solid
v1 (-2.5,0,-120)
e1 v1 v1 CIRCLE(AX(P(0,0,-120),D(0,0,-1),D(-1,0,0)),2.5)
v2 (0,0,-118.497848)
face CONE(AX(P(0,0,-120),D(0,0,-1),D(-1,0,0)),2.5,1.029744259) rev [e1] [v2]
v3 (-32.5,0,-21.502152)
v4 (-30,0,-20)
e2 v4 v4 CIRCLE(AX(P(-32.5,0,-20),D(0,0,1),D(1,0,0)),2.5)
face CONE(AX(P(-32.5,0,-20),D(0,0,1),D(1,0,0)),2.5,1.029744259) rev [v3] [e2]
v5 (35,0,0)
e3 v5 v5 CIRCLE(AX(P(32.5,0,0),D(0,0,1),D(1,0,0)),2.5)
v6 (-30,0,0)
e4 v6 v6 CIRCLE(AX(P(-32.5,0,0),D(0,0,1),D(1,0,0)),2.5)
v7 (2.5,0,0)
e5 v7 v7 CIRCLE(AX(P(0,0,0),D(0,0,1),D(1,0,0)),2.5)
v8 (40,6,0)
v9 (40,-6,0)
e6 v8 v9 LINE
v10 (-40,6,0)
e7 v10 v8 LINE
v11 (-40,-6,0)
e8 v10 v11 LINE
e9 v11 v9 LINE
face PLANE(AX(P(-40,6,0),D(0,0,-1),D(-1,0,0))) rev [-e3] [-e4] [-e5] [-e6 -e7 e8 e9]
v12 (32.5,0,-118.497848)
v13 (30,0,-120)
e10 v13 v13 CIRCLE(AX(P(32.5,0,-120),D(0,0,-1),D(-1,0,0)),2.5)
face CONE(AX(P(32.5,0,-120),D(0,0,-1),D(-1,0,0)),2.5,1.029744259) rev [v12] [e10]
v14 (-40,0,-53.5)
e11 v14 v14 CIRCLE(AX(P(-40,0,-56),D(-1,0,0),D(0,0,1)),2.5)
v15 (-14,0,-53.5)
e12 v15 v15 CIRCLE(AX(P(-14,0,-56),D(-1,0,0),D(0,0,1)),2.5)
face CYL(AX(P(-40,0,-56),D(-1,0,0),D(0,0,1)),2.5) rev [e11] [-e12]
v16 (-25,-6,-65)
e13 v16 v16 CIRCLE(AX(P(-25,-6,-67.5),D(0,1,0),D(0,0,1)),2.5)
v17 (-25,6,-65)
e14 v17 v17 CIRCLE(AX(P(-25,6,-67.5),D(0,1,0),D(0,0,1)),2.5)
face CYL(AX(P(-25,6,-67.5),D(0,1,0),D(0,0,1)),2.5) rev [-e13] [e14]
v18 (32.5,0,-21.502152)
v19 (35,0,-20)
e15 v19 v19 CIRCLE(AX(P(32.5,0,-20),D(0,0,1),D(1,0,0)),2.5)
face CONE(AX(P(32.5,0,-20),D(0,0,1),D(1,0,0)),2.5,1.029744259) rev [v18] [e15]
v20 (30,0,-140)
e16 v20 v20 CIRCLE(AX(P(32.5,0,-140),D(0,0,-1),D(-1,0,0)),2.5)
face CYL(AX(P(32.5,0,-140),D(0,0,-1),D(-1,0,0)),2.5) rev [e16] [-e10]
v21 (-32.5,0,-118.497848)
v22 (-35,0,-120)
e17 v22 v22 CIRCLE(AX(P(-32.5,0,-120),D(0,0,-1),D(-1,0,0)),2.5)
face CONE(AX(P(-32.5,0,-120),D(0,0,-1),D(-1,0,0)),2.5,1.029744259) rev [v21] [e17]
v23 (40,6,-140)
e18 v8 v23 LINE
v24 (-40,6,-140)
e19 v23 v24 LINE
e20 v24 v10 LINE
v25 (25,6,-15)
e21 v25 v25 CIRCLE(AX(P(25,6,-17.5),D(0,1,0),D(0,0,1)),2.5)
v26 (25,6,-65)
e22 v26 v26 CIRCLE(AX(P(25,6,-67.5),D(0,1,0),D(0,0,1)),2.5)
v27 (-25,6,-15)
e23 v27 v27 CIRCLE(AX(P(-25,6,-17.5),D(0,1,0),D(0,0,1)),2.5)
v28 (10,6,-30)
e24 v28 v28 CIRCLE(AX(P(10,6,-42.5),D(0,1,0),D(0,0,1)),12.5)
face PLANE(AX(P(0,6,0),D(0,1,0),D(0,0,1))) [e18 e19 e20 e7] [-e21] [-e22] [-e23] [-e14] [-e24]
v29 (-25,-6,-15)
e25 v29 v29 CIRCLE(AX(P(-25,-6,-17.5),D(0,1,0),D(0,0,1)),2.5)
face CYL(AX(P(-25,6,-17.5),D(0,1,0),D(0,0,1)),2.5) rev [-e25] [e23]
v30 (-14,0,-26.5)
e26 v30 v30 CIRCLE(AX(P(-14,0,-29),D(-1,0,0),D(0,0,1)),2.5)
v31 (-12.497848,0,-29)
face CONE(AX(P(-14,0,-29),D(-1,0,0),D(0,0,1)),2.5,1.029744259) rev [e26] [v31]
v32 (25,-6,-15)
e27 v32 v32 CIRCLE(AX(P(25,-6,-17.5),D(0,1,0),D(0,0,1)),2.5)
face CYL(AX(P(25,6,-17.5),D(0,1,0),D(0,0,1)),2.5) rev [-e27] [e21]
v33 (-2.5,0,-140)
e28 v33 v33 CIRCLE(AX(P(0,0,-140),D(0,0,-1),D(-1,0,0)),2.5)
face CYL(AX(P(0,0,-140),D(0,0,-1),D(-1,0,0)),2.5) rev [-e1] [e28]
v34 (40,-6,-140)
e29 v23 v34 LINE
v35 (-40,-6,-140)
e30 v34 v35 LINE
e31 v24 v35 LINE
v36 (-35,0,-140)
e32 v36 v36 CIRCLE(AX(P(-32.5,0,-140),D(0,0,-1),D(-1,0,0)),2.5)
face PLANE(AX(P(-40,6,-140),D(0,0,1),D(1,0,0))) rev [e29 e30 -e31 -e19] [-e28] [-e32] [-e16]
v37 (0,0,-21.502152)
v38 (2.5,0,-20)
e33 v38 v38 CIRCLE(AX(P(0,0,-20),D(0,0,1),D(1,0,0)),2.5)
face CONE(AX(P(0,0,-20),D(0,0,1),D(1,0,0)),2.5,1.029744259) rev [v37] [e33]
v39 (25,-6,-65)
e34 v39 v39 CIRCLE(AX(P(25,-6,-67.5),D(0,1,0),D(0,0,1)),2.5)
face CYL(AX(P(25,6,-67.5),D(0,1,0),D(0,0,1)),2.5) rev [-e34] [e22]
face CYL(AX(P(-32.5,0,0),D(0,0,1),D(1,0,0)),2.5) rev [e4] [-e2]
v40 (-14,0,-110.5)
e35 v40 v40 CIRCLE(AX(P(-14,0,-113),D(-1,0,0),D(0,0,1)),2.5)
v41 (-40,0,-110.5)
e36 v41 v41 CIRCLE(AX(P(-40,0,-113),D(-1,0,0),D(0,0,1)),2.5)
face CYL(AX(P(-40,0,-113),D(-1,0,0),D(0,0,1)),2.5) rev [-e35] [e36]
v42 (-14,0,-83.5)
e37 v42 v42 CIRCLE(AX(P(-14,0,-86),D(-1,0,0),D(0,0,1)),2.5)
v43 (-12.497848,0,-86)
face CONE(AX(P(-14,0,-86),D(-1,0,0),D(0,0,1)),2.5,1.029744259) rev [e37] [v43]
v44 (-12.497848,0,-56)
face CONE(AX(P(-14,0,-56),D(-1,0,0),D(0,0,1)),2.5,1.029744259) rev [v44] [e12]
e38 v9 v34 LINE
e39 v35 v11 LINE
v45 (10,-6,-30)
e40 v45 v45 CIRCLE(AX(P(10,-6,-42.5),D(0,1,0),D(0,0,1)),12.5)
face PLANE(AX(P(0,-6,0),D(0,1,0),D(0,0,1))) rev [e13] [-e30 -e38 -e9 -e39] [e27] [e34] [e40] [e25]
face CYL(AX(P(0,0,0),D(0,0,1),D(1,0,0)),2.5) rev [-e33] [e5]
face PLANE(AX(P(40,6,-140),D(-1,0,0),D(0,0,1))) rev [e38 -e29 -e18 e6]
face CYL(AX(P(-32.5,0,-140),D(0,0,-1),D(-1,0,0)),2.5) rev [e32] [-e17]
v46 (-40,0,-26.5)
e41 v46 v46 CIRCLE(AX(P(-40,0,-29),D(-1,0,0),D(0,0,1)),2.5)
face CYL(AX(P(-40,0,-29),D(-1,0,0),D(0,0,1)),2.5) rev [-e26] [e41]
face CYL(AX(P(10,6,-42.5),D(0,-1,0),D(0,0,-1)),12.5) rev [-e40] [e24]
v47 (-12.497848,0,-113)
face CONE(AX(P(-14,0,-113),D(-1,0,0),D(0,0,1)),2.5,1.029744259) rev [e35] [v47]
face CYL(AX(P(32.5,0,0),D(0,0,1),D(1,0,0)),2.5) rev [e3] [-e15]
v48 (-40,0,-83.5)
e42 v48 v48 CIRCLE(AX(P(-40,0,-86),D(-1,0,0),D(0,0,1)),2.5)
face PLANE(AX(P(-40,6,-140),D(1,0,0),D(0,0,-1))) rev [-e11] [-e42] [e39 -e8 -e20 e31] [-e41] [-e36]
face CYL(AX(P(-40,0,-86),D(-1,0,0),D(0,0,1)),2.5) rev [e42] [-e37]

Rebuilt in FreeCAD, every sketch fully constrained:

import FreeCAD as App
import Part
import Sketcher
Q = App.Units.Quantity

doc = App.newDocument("Part")
body = doc.addObject("PartDesign::Body", "Body")

# Sketch on XZ plane
sketch1 = body.newObject("Sketcher::SketchObject", "Sketch")
sketch1.AttachmentSupport = (doc.getObject("XZ_Plane"), [""])
sketch1.MapMode = "FlatFace"
sketch1.addGeometry([
    Part.LineSegment(App.Vector(-40, -140, 0), App.Vector(-40, 0, 0)),  # 0
    Part.LineSegment(App.Vector(-40, 0, 0), App.Vector(40, 0, 0)),  # 1
    Part.LineSegment(App.Vector(40, 0, 0), App.Vector(40, -140, 0)),  # 2
    Part.LineSegment(App.Vector(40, -140, 0), App.Vector(-40, -140, 0)),  # 3
    Part.Circle(App.Vector(10, -42, 0), App.Vector(0, 0, 1), 12),  # 4
], False)
sketch1.addConstraint([
    Sketcher.Constraint("Coincident", 0, 2, 1, 1),
    Sketcher.Constraint("Coincident", 1, 2, 2, 1),
    Sketcher.Constraint("Coincident", 2, 2, 3, 1),
    Sketcher.Constraint("Coincident", 3, 2, 0, 1),
    Sketcher.Constraint("Vertical", 0),
    Sketcher.Constraint("Horizontal", 1),
    Sketcher.Constraint("Vertical", 2),
    Sketcher.Constraint("Horizontal", 3),
    Sketcher.Constraint("Symmetric", 0, 2, 1, 2, -1, 1),
    Sketcher.Constraint("Diameter", 4, 25.0),
    Sketcher.Constraint("DistanceX", 1, 1, 1, 2, 80.0),
    Sketcher.Constraint("DistanceY", 0, 1, 0, 2, 140.0),
    Sketcher.Constraint("DistanceX", -1, 1, 4, 3, 10.0),
    Sketcher.Constraint("DistanceY", 4, 3, -1, 1, 42.5),
])
pad1 = body.newObject("PartDesign::Pad", "Pad")
pad1.Profile = sketch1
pad1.Length = 12
pad1.Midplane = True

# Sketch on XZ plane
sketch2 = body.newObject("Sketcher::SketchObject", "Sketch001")
sketch2.AttachmentSupport = (doc.getObject("XZ_Plane"), [""])
sketch2.MapMode = "FlatFace"
sketch2.AttachmentOffset = App.Placement(App.Vector(0, 0, -6), App.Rotation())
sketch2.addGeometry([
    Part.Circle(App.Vector(-25, -67.5, 0), App.Vector(0, 0, 1), 2.5),
    Part.Circle(App.Vector(25, -67.5, 0), App.Vector(0, 0, 1), 2.5),
    Part.Circle(App.Vector(25, -17.5, 0), App.Vector(0, 0, 1), 2.5),
    Part.Circle(App.Vector(-25, -17.5, 0), App.Vector(0, 0, 1), 2.5),
], False)
sketch2.addConstraint([
    Sketcher.Constraint("Equal", 0, 1),
    Sketcher.Constraint("Equal", 1, 2),
    Sketcher.Constraint("Equal", 2, 3),
    Sketcher.Constraint("Symmetric", 0, 3, 1, 3, -2),
    Sketcher.Constraint("Symmetric", 2, 3, 3, 3, -2),
    Sketcher.Constraint("Vertical", 1, 3, 2, 3),
    Sketcher.Constraint("Diameter", 0, 5.0),
    Sketcher.Constraint("DistanceX", 0, 3, -1, 1, 25.0),
    Sketcher.Constraint("DistanceY", 1, 3, 2, 3, 50.0),
    Sketcher.Constraint("DistanceY", 0, 3, -1, 1, 67.5),
])
doc.recompute()
hole = body.newObject("PartDesign::Hole", "Hole")
hole.Profile = sketch2
hole.ThreadType = "None"
hole.Diameter = 5
hole.DepthType = "ThroughAll"
hole.Reversed = True

# Sketch on YZ plane
sketch3 = body.newObject("Sketcher::SketchObject", "Sketch002")
sketch3.AttachmentSupport = (doc.getObject("YZ_Plane"), [""])
sketch3.MapMode = "FlatFace"
sketch3.AttachmentOffset = App.Placement(App.Vector(0, 0, 32.5), App.Rotation())
sketch3.addGeometry([
    Part.LineSegment(App.Vector(0, -21.5, 0), App.Vector(0, 0, 0)),
    Part.LineSegment(App.Vector(0, 0, 0), App.Vector(-2.5, 0, 0)),
    Part.LineSegment(App.Vector(-2.5, 0, 0), App.Vector(-2.5, -20, 0)),
    Part.LineSegment(App.Vector(-2.5, -20, 0), App.Vector(0, -21.5, 0)),
], False)
sketch3.addConstraint([
    Sketcher.Constraint("Coincident", 0, 2, 1, 1),
    Sketcher.Constraint("Coincident", 1, 2, 2, 1),
    Sketcher.Constraint("Coincident", 2, 2, 3, 1),
    Sketcher.Constraint("Coincident", 3, 2, 0, 1),
    Sketcher.Constraint("Vertical", 0),
    Sketcher.Constraint("Horizontal", 1),
    Sketcher.Constraint("Vertical", 2),
    Sketcher.Constraint("Coincident", 0, 2, -1, 1),
    Sketcher.Constraint("DistanceY", 2, 2, 2, 1, 20.0),
    Sketcher.Constraint("Angle", 3, Q("-31 deg")),
    Sketcher.Constraint("DistanceX", 1, 2, 1, 1, 2.5),
])
groove = body.newObject("PartDesign::Groove", "Groove")
groove.Profile = sketch3
groove.ReferenceAxis = (sketch3, ["V_Axis"])
groove.Angle = 360
doc.recompute()

linearpattern = body.newObject("PartDesign::LinearPattern", "LinearPattern")
linearpattern.Originals = [groove]
linearpattern.Direction = (doc.getObject("X_Axis"), [""])
linearpattern.Mode = "offset"
linearpattern.Offset = 32.5
linearpattern.Occurrences = 2
linearpattern.Reversed = True
body.Tip = linearpattern
doc.recompute()

linearpattern2 = body.newObject("PartDesign::LinearPattern", "LinearPattern001")
linearpattern2.Originals = [groove]
linearpattern2.Direction = (doc.getObject("X_Axis"), [""])
linearpattern2.Mode = "offset"
linearpattern2.Offset = 65
linearpattern2.Occurrences = 2
linearpattern2.Reversed = True
body.Tip = linearpattern2
doc.recompute()

datumplane = body.newObject("PartDesign::Plane", "DatumPlane")
datumplane.AttachmentSupport = (doc.getObject("XY_Plane"), [""])
datumplane.MapMode = "FlatFace"
datumplane.AttachmentOffset = App.Placement(App.Vector(0, 0, -70), App.Rotation())
mirrored = body.newObject("PartDesign::Mirrored", "Mirrored")
mirrored.Originals = [groove]
mirrored.MirrorPlane = (datumplane, [""])
body.Tip = mirrored

# Sketch on YZ plane
sketch4 = body.newObject("Sketcher::SketchObject", "Sketch003")
sketch4.AttachmentSupport = (doc.getObject("YZ_Plane"), [""])
sketch4.MapMode = "FlatFace"
sketch4.addGeometry([
    Part.LineSegment(App.Vector(0, -140, 0), App.Vector(0, -118.5, 0)),
    Part.LineSegment(App.Vector(0, -118.5, 0), App.Vector(-2.5, -120, 0)),
    Part.LineSegment(App.Vector(-2.5, -120, 0), App.Vector(-2.5, -140, 0)),
    Part.LineSegment(App.Vector(-2.5, -140, 0), App.Vector(0, -140, 0)),
], False)
sketch4.addConstraint([
    Sketcher.Constraint("Coincident", 0, 2, 1, 1),
    Sketcher.Constraint("Coincident", 1, 2, 2, 1),
    Sketcher.Constraint("Coincident", 2, 2, 3, 1),
    Sketcher.Constraint("Coincident", 3, 2, 0, 1),
    Sketcher.Constraint("Vertical", 0),
    Sketcher.Constraint("Vertical", 2),
    Sketcher.Constraint("Horizontal", 3),
    Sketcher.Constraint("PointOnObject", 0, 2, -2),
    Sketcher.Constraint("DistanceY", 2, 2, 2, 1, 20.0),
    Sketcher.Constraint("Angle", 1, Q("-149 deg")),
    Sketcher.Constraint("DistanceX", 3, 1, 3, 2, 2.5),
    Sketcher.Constraint("DistanceY", 1, 2, -1, 1, 120.0),
])
groove2 = body.newObject("PartDesign::Groove", "Groove001")
groove2.Profile = sketch4
groove2.ReferenceAxis = (sketch4, ["V_Axis"])
groove2.Angle = 360

# Sketch on YZ plane
sketch5 = body.newObject("Sketcher::SketchObject", "Sketch004")
sketch5.AttachmentSupport = (doc.getObject("YZ_Plane"), [""])
sketch5.MapMode = "FlatFace"
sketch5.AttachmentOffset = App.Placement(App.Vector(0, 0, -32.5), App.Rotation())
sketch5.addGeometry([
    Part.LineSegment(App.Vector(0, -140, 0), App.Vector(0, -118.5, 0)),
    Part.LineSegment(App.Vector(0, -118.5, 0), App.Vector(-2.5, -120, 0)),
    Part.LineSegment(App.Vector(-2.5, -120, 0), App.Vector(-2.5, -140, 0)),
    Part.LineSegment(App.Vector(-2.5, -140, 0), App.Vector(0, -140, 0)),
], False)
sketch5.addConstraint([
    Sketcher.Constraint("Coincident", 0, 2, 1, 1),
    Sketcher.Constraint("Coincident", 1, 2, 2, 1),
    Sketcher.Constraint("Coincident", 2, 2, 3, 1),
    Sketcher.Constraint("Coincident", 3, 2, 0, 1),
    Sketcher.Constraint("Vertical", 0),
    Sketcher.Constraint("Vertical", 2),
    Sketcher.Constraint("Horizontal", 3),
    Sketcher.Constraint("PointOnObject", 0, 2, -2),
    Sketcher.Constraint("DistanceY", 2, 2, 2, 1, 20.0),
    Sketcher.Constraint("Angle", 1, Q("-149 deg")),
    Sketcher.Constraint("DistanceX", 3, 1, 3, 2, 2.5),
    Sketcher.Constraint("DistanceY", 1, 2, -1, 1, 120.0),
])
groove3 = body.newObject("PartDesign::Groove", "Groove002")
groove3.Profile = sketch5
groove3.ReferenceAxis = (sketch5, ["V_Axis"])
groove3.Angle = 360

# Sketch on YZ plane
sketch6 = body.newObject("Sketcher::SketchObject", "Sketch005")
sketch6.AttachmentSupport = (doc.getObject("YZ_Plane"), [""])
sketch6.MapMode = "FlatFace"
sketch6.AttachmentOffset = App.Placement(App.Vector(0, 0, -40), App.Rotation())
sketch6.addGeometry([
    Part.Circle(App.Vector(0, -113, 0), App.Vector(0, 0, 1), 2.5),
    Part.Circle(App.Vector(0, -86, 0), App.Vector(0, 0, 1), 2.5),
    Part.Circle(App.Vector(0, -56, 0), App.Vector(0, 0, 1), 2.5),
    Part.Circle(App.Vector(0, -29, 0), App.Vector(0, 0, 1), 2.5),
], False)
sketch6.addConstraint([
    Sketcher.Constraint("Equal", 0, 1),
    Sketcher.Constraint("Equal", 1, 2),
    Sketcher.Constraint("Equal", 2, 3),
    Sketcher.Constraint("PointOnObject", 0, 3, -2),
    Sketcher.Constraint("PointOnObject", 1, 3, -2),
    Sketcher.Constraint("PointOnObject", 2, 3, -2),
    Sketcher.Constraint("PointOnObject", 3, 3, -2),
    Sketcher.Constraint("Diameter", 0, 5.0),
    Sketcher.Constraint("DistanceY", 0, 3, -1, 1, 113.0),
    Sketcher.Constraint("DistanceY", 1, 3, -1, 1, 86.0),
    Sketcher.Constraint("DistanceY", 2, 3, -1, 1, 56.0),
    Sketcher.Constraint("DistanceY", 3, 3, -1, 1, 29.0),
])
doc.recompute()
hole2 = body.newObject("PartDesign::Hole", "Hole001")
hole2.Profile = sketch6
hole2.ThreadType = "None"
hole2.Diameter = 5
hole2.DepthType = "Dimension"
hole2.Depth = 26
hole2.DrillPoint = "Angled"
hole2.DrillPointAngle = 118
hole2.Reversed = True

doc.recompute()
